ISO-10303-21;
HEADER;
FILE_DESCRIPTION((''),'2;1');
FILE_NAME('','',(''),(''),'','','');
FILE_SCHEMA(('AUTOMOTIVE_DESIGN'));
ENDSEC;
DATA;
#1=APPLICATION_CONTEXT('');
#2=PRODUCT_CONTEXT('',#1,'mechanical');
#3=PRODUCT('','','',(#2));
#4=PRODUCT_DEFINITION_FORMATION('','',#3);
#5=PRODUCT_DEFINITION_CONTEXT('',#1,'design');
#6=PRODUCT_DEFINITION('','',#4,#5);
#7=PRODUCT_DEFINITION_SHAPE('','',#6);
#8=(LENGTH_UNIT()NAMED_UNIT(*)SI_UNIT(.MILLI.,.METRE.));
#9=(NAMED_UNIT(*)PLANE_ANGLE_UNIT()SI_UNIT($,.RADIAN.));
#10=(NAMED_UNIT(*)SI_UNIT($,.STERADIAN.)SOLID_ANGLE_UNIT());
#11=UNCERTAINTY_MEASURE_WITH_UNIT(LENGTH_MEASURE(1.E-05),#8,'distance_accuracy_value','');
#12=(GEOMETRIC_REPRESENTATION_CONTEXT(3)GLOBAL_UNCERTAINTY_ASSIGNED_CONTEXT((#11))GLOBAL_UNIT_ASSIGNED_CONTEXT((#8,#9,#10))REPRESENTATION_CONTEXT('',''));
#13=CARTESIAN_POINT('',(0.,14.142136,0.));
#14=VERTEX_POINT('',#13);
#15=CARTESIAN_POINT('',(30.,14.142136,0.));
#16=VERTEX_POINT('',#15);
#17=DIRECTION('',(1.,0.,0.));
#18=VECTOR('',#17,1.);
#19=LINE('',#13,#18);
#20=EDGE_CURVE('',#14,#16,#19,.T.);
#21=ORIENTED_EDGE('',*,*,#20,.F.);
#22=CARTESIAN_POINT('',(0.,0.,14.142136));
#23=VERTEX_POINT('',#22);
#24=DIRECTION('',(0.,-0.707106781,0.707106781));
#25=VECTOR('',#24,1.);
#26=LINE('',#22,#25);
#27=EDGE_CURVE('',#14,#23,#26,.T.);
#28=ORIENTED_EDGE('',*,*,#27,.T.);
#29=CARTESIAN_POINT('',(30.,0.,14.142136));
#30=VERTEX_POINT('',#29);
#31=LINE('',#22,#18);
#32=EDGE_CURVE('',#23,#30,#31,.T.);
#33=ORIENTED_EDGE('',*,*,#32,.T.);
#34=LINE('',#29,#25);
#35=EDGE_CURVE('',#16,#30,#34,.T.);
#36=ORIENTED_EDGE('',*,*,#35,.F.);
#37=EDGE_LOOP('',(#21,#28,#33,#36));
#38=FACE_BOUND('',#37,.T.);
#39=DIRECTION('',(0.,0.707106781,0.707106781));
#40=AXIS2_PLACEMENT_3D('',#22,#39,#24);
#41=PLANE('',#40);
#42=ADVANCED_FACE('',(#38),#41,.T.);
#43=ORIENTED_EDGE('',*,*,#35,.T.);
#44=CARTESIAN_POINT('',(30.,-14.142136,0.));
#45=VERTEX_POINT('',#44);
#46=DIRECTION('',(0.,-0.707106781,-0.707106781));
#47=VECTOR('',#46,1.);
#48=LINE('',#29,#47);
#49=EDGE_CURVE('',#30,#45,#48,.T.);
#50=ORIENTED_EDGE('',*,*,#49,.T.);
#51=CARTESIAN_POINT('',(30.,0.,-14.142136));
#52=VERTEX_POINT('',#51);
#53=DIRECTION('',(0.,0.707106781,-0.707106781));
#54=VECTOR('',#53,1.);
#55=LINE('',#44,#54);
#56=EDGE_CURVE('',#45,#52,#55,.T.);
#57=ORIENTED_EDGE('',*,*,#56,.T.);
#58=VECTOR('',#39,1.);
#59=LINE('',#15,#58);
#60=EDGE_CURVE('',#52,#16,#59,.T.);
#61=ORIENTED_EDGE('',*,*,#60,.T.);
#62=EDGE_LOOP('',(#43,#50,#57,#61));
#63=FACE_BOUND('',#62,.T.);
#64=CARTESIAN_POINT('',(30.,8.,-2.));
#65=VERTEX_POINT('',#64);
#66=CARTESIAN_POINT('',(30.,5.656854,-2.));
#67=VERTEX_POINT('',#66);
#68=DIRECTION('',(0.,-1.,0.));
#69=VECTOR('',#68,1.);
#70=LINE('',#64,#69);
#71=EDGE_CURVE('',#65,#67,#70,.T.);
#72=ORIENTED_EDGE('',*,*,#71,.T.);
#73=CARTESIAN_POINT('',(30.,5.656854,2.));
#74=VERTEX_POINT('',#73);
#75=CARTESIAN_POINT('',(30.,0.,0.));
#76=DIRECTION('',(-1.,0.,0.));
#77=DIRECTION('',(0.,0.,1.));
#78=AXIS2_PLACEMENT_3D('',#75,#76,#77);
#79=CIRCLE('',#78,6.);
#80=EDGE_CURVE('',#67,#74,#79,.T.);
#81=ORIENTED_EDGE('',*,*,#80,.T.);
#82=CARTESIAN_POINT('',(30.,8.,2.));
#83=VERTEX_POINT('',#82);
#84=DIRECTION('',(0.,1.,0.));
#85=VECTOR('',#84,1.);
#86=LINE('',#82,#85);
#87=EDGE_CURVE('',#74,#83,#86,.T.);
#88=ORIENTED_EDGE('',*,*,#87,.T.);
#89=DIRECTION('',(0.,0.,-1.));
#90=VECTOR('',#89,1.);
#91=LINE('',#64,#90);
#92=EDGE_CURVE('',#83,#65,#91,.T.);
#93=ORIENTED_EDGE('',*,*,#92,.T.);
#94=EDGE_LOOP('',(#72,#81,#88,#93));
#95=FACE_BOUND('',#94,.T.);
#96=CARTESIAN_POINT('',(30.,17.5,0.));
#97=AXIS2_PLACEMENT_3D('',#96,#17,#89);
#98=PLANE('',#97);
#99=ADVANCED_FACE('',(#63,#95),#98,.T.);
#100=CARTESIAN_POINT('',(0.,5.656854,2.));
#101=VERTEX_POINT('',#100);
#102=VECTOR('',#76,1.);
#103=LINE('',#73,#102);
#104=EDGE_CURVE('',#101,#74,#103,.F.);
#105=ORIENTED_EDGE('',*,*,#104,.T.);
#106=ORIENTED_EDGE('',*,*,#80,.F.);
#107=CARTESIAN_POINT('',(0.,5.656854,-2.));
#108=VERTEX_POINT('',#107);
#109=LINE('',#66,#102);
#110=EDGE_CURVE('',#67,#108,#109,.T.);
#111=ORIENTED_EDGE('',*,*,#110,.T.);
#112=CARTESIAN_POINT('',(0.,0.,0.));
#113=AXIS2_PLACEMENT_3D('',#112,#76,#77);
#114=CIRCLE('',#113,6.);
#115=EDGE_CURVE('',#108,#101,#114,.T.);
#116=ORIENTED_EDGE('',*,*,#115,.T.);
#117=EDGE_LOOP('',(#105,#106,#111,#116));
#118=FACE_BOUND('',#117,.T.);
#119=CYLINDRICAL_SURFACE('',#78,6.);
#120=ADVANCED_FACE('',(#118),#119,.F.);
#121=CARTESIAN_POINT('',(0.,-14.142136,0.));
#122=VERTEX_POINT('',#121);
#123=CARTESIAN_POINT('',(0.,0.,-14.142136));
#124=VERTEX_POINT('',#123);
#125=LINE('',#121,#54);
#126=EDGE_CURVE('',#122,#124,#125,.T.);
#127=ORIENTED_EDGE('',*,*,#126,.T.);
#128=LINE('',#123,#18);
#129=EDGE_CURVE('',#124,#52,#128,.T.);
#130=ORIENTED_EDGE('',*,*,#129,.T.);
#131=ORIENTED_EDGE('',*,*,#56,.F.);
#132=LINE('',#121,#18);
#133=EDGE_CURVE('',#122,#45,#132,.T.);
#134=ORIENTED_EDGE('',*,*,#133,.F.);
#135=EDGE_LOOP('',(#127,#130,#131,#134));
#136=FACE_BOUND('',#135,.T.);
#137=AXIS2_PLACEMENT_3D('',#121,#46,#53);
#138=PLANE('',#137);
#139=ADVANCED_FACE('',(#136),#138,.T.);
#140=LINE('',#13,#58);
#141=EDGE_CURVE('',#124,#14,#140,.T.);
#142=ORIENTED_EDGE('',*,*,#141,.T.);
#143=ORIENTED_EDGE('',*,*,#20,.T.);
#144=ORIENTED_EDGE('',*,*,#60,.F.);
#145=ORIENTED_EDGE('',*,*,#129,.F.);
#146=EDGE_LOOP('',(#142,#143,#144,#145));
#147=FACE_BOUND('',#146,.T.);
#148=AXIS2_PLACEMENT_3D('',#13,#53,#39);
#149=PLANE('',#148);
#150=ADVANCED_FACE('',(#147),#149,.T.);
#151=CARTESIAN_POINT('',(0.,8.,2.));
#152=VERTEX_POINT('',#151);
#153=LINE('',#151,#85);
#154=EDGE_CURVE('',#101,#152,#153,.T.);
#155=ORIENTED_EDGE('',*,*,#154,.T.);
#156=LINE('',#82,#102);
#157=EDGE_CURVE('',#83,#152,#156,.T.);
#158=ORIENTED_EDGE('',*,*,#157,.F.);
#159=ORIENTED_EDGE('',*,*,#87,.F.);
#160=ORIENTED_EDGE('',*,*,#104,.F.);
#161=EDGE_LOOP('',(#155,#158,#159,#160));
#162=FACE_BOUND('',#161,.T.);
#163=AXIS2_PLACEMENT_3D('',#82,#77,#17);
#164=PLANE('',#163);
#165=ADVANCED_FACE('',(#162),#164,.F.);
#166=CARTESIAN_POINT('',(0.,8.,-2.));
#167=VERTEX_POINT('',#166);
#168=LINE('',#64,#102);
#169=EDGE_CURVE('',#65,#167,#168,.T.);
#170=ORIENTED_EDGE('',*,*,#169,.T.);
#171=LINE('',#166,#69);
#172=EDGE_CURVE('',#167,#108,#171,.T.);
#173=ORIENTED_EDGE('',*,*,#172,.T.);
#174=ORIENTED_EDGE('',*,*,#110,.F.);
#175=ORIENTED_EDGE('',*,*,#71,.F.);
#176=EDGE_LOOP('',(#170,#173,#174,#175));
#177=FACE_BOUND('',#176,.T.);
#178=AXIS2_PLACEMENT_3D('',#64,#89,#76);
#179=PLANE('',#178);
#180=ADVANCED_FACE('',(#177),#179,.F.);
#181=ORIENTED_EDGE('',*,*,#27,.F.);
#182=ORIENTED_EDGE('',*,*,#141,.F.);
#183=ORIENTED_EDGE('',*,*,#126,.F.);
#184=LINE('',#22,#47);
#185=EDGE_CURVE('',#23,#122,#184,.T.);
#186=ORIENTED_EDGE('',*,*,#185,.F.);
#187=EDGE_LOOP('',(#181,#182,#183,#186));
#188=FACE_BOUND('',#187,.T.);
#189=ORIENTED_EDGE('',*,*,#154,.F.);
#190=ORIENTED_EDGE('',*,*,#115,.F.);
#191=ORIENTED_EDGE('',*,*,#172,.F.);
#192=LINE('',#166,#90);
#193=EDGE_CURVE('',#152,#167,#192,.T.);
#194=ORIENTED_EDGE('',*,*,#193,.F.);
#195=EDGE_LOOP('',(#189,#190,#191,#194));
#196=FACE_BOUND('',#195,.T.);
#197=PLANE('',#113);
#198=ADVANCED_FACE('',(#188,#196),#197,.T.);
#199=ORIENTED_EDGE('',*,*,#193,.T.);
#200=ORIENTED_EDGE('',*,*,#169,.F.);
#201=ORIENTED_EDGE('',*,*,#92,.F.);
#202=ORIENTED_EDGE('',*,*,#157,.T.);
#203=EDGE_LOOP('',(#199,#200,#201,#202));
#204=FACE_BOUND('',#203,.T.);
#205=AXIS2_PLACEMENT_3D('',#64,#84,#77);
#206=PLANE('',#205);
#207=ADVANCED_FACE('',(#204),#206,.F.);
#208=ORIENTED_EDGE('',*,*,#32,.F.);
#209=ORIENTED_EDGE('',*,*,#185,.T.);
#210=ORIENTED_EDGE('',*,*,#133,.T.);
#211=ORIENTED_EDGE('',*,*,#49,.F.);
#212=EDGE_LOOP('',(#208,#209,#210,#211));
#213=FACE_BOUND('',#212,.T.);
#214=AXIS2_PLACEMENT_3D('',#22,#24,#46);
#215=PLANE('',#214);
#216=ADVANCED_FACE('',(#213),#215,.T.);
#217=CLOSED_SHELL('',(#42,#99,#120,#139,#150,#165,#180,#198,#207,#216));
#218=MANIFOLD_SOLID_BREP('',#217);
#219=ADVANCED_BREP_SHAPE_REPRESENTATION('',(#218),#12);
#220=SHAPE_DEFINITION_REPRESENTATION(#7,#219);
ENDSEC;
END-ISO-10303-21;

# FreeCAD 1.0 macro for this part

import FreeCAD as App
import Part
import Sketcher

V = App.Vector


def add_polygon(sketch, points):
    """Adds a closed chain of lines whose ends are joined by coincident constraints."""
    first, n = sketch.GeometryCount, len(points)
    for a, b in zip(points, points[1:] + points[:1]):
        sketch.addGeometry(Part.LineSegment(App.Vector(*a, 0), App.Vector(*b, 0)), False)
    for i in range(n):
        sketch.addConstraint(Sketcher.Constraint("Coincident", first + i, 2, first + (i + 1) % n, 1))

doc = App.newDocument("Part")
body = doc.addObject("PartDesign::Body", "Body")

sketch1 = doc.addObject("Sketcher::SketchObject", "Sketch")
body.addObject(sketch1)
sketch1.AttachmentSupport = (doc.XY_Plane, [""])
sketch1.MapMode = "FlatFace"
add_polygon(sketch1, [(0, 18), (0, 0), (30, 0), (30, 18)])
sketch1.addConstraint(Sketcher.Constraint("Vertical", 0))
sketch1.addConstraint(Sketcher.Constraint("Horizontal", 1))
sketch1.addConstraint(Sketcher.Constraint("Vertical", 2))
sketch1.addConstraint(Sketcher.Constraint("Horizontal", 3))
sketch1.addConstraint(Sketcher.Constraint("Coincident", 0, 2, -1, 1))
sketch1.addConstraint(Sketcher.Constraint("DistanceX", 1, 1, 1, 2, 30.0))
sketch1.addConstraint(Sketcher.Constraint("DistanceY", 0, 2, 0, 1, 17.5))
revolution = doc.addObject("PartDesign::Revolution", "Revolution")
body.addObject(revolution)
revolution.Profile = sketch1
revolution.ReferenceAxis = (sketch1, ["H_Axis"])
revolution.Angle = 360

sketch2 = doc.addObject("Sketcher::SketchObject", "Sketch001")
body.addObject(sketch2)
sketch2.AttachmentSupport = (doc.YZ_Plane, [""])
sketch2.MapMode = "FlatFace"
sketch2.addGeometry(Part.Circle(V(0, 0, 0), V(0, 0, 1), 6), False)
sketch2.addConstraint(Sketcher.Constraint("Coincident", 0, 3, -1, 1))
sketch2.addConstraint(Sketcher.Constraint("Diameter", 0, 12.0))
pocket1 = doc.addObject("PartDesign::Pocket", "Pocket")
body.addObject(pocket1)
pocket1.Profile = sketch2
pocket1.Type = "ThroughAll"
pocket1.Reversed = True

sketch3 = doc.addObject("Sketcher::SketchObject", "Sketch002")
body.addObject(sketch3)
sketch3.AttachmentSupport = (doc.YZ_Plane, [""])
sketch3.MapMode = "FlatFace"
add_polygon(sketch3, [(8, -2), (4, -2), (4, 2), (8, 2)])
sketch3.addConstraint(Sketcher.Constraint("Horizontal", 0))
sketch3.addConstraint(Sketcher.Constraint("Vertical", 1))
sketch3.addConstraint(Sketcher.Constraint("Horizontal", 2))
sketch3.addConstraint(Sketcher.Constraint("Vertical", 3))
sketch3.addConstraint(Sketcher.Constraint("Equal", 2, 1))
sketch3.addConstraint(Sketcher.Constraint("DistanceX", 0, 2, 0, 1, 4.0))
sketch3.addConstraint(Sketcher.Constraint("DistanceX", -1, 1, 0, 2, 4.0))
sketch3.addConstraint(Sketcher.Constraint("DistanceY", 0, 2, -1, 1, 2.0))
pocket2 = doc.addObject("PartDesign::Pocket", "Pocket001")
body.addObject(pocket2)
pocket2.Profile = sketch3
pocket2.Type = "ThroughAll"
pocket2.Reversed = True

sketch4 = doc.addObject("Sketcher::SketchObject", "Sketch003")
body.addObject(sketch4)
sketch4.AttachmentSupport = (doc.YZ_Plane, [""])
sketch4.MapMode = "FlatFace"
sketch4.AttachmentOffset = App.Placement(V(0, 0, 30), App.Rotation())
add_polygon(sketch4, [(24, 24), (-24, 24), (-24, -24), (24, -24)])
add_polygon(sketch4, [(-14, 0), (0, 14), (14, 0), (0, -14)])
sketch4.addConstraint(Sketcher.Constraint("Horizontal", 0))
sketch4.addConstraint(Sketcher.Constraint("Vertical", 1))
sketch4.addConstraint(Sketcher.Constraint("Horizontal", 2))
sketch4.addConstraint(Sketcher.Constraint("Vertical", 3))
sketch4.addConstraint(Sketcher.Constraint("Symmetric", 0, 2, 2, 2, -1, 1))
sketch4.addConstraint(Sketcher.Constraint("Symmetric", 4, 2, 6, 2, -1, 1))
sketch4.addConstraint(Sketcher.Constraint("Symmetric", 5, 2, 7, 2, -1, 1))
sketch4.addConstraint(Sketcher.Constraint("PointOnObject", 4, 2, -2))
sketch4.addConstraint(Sketcher.Constraint("PointOnObject", 5, 2, -1))
sketch4.addConstraint(Sketcher.Constraint("Perpendicular", 4, 5))
sketch4.addConstraint(Sketcher.Constraint("Equal", 2, 1))
sketch4.addConstraint(Sketcher.Constraint("Distance", 4, 20.0))
sketch4.addConstraint(Sketcher.Constraint("DistanceX", 0, 2, 0, 1, 48.576))
pocket3 = doc.addObject("PartDesign::Pocket", "Pocket002")
body.addObject(pocket3)
pocket3.Profile = sketch4
pocket3.Type = "ThroughAll"

doc.recompute()
